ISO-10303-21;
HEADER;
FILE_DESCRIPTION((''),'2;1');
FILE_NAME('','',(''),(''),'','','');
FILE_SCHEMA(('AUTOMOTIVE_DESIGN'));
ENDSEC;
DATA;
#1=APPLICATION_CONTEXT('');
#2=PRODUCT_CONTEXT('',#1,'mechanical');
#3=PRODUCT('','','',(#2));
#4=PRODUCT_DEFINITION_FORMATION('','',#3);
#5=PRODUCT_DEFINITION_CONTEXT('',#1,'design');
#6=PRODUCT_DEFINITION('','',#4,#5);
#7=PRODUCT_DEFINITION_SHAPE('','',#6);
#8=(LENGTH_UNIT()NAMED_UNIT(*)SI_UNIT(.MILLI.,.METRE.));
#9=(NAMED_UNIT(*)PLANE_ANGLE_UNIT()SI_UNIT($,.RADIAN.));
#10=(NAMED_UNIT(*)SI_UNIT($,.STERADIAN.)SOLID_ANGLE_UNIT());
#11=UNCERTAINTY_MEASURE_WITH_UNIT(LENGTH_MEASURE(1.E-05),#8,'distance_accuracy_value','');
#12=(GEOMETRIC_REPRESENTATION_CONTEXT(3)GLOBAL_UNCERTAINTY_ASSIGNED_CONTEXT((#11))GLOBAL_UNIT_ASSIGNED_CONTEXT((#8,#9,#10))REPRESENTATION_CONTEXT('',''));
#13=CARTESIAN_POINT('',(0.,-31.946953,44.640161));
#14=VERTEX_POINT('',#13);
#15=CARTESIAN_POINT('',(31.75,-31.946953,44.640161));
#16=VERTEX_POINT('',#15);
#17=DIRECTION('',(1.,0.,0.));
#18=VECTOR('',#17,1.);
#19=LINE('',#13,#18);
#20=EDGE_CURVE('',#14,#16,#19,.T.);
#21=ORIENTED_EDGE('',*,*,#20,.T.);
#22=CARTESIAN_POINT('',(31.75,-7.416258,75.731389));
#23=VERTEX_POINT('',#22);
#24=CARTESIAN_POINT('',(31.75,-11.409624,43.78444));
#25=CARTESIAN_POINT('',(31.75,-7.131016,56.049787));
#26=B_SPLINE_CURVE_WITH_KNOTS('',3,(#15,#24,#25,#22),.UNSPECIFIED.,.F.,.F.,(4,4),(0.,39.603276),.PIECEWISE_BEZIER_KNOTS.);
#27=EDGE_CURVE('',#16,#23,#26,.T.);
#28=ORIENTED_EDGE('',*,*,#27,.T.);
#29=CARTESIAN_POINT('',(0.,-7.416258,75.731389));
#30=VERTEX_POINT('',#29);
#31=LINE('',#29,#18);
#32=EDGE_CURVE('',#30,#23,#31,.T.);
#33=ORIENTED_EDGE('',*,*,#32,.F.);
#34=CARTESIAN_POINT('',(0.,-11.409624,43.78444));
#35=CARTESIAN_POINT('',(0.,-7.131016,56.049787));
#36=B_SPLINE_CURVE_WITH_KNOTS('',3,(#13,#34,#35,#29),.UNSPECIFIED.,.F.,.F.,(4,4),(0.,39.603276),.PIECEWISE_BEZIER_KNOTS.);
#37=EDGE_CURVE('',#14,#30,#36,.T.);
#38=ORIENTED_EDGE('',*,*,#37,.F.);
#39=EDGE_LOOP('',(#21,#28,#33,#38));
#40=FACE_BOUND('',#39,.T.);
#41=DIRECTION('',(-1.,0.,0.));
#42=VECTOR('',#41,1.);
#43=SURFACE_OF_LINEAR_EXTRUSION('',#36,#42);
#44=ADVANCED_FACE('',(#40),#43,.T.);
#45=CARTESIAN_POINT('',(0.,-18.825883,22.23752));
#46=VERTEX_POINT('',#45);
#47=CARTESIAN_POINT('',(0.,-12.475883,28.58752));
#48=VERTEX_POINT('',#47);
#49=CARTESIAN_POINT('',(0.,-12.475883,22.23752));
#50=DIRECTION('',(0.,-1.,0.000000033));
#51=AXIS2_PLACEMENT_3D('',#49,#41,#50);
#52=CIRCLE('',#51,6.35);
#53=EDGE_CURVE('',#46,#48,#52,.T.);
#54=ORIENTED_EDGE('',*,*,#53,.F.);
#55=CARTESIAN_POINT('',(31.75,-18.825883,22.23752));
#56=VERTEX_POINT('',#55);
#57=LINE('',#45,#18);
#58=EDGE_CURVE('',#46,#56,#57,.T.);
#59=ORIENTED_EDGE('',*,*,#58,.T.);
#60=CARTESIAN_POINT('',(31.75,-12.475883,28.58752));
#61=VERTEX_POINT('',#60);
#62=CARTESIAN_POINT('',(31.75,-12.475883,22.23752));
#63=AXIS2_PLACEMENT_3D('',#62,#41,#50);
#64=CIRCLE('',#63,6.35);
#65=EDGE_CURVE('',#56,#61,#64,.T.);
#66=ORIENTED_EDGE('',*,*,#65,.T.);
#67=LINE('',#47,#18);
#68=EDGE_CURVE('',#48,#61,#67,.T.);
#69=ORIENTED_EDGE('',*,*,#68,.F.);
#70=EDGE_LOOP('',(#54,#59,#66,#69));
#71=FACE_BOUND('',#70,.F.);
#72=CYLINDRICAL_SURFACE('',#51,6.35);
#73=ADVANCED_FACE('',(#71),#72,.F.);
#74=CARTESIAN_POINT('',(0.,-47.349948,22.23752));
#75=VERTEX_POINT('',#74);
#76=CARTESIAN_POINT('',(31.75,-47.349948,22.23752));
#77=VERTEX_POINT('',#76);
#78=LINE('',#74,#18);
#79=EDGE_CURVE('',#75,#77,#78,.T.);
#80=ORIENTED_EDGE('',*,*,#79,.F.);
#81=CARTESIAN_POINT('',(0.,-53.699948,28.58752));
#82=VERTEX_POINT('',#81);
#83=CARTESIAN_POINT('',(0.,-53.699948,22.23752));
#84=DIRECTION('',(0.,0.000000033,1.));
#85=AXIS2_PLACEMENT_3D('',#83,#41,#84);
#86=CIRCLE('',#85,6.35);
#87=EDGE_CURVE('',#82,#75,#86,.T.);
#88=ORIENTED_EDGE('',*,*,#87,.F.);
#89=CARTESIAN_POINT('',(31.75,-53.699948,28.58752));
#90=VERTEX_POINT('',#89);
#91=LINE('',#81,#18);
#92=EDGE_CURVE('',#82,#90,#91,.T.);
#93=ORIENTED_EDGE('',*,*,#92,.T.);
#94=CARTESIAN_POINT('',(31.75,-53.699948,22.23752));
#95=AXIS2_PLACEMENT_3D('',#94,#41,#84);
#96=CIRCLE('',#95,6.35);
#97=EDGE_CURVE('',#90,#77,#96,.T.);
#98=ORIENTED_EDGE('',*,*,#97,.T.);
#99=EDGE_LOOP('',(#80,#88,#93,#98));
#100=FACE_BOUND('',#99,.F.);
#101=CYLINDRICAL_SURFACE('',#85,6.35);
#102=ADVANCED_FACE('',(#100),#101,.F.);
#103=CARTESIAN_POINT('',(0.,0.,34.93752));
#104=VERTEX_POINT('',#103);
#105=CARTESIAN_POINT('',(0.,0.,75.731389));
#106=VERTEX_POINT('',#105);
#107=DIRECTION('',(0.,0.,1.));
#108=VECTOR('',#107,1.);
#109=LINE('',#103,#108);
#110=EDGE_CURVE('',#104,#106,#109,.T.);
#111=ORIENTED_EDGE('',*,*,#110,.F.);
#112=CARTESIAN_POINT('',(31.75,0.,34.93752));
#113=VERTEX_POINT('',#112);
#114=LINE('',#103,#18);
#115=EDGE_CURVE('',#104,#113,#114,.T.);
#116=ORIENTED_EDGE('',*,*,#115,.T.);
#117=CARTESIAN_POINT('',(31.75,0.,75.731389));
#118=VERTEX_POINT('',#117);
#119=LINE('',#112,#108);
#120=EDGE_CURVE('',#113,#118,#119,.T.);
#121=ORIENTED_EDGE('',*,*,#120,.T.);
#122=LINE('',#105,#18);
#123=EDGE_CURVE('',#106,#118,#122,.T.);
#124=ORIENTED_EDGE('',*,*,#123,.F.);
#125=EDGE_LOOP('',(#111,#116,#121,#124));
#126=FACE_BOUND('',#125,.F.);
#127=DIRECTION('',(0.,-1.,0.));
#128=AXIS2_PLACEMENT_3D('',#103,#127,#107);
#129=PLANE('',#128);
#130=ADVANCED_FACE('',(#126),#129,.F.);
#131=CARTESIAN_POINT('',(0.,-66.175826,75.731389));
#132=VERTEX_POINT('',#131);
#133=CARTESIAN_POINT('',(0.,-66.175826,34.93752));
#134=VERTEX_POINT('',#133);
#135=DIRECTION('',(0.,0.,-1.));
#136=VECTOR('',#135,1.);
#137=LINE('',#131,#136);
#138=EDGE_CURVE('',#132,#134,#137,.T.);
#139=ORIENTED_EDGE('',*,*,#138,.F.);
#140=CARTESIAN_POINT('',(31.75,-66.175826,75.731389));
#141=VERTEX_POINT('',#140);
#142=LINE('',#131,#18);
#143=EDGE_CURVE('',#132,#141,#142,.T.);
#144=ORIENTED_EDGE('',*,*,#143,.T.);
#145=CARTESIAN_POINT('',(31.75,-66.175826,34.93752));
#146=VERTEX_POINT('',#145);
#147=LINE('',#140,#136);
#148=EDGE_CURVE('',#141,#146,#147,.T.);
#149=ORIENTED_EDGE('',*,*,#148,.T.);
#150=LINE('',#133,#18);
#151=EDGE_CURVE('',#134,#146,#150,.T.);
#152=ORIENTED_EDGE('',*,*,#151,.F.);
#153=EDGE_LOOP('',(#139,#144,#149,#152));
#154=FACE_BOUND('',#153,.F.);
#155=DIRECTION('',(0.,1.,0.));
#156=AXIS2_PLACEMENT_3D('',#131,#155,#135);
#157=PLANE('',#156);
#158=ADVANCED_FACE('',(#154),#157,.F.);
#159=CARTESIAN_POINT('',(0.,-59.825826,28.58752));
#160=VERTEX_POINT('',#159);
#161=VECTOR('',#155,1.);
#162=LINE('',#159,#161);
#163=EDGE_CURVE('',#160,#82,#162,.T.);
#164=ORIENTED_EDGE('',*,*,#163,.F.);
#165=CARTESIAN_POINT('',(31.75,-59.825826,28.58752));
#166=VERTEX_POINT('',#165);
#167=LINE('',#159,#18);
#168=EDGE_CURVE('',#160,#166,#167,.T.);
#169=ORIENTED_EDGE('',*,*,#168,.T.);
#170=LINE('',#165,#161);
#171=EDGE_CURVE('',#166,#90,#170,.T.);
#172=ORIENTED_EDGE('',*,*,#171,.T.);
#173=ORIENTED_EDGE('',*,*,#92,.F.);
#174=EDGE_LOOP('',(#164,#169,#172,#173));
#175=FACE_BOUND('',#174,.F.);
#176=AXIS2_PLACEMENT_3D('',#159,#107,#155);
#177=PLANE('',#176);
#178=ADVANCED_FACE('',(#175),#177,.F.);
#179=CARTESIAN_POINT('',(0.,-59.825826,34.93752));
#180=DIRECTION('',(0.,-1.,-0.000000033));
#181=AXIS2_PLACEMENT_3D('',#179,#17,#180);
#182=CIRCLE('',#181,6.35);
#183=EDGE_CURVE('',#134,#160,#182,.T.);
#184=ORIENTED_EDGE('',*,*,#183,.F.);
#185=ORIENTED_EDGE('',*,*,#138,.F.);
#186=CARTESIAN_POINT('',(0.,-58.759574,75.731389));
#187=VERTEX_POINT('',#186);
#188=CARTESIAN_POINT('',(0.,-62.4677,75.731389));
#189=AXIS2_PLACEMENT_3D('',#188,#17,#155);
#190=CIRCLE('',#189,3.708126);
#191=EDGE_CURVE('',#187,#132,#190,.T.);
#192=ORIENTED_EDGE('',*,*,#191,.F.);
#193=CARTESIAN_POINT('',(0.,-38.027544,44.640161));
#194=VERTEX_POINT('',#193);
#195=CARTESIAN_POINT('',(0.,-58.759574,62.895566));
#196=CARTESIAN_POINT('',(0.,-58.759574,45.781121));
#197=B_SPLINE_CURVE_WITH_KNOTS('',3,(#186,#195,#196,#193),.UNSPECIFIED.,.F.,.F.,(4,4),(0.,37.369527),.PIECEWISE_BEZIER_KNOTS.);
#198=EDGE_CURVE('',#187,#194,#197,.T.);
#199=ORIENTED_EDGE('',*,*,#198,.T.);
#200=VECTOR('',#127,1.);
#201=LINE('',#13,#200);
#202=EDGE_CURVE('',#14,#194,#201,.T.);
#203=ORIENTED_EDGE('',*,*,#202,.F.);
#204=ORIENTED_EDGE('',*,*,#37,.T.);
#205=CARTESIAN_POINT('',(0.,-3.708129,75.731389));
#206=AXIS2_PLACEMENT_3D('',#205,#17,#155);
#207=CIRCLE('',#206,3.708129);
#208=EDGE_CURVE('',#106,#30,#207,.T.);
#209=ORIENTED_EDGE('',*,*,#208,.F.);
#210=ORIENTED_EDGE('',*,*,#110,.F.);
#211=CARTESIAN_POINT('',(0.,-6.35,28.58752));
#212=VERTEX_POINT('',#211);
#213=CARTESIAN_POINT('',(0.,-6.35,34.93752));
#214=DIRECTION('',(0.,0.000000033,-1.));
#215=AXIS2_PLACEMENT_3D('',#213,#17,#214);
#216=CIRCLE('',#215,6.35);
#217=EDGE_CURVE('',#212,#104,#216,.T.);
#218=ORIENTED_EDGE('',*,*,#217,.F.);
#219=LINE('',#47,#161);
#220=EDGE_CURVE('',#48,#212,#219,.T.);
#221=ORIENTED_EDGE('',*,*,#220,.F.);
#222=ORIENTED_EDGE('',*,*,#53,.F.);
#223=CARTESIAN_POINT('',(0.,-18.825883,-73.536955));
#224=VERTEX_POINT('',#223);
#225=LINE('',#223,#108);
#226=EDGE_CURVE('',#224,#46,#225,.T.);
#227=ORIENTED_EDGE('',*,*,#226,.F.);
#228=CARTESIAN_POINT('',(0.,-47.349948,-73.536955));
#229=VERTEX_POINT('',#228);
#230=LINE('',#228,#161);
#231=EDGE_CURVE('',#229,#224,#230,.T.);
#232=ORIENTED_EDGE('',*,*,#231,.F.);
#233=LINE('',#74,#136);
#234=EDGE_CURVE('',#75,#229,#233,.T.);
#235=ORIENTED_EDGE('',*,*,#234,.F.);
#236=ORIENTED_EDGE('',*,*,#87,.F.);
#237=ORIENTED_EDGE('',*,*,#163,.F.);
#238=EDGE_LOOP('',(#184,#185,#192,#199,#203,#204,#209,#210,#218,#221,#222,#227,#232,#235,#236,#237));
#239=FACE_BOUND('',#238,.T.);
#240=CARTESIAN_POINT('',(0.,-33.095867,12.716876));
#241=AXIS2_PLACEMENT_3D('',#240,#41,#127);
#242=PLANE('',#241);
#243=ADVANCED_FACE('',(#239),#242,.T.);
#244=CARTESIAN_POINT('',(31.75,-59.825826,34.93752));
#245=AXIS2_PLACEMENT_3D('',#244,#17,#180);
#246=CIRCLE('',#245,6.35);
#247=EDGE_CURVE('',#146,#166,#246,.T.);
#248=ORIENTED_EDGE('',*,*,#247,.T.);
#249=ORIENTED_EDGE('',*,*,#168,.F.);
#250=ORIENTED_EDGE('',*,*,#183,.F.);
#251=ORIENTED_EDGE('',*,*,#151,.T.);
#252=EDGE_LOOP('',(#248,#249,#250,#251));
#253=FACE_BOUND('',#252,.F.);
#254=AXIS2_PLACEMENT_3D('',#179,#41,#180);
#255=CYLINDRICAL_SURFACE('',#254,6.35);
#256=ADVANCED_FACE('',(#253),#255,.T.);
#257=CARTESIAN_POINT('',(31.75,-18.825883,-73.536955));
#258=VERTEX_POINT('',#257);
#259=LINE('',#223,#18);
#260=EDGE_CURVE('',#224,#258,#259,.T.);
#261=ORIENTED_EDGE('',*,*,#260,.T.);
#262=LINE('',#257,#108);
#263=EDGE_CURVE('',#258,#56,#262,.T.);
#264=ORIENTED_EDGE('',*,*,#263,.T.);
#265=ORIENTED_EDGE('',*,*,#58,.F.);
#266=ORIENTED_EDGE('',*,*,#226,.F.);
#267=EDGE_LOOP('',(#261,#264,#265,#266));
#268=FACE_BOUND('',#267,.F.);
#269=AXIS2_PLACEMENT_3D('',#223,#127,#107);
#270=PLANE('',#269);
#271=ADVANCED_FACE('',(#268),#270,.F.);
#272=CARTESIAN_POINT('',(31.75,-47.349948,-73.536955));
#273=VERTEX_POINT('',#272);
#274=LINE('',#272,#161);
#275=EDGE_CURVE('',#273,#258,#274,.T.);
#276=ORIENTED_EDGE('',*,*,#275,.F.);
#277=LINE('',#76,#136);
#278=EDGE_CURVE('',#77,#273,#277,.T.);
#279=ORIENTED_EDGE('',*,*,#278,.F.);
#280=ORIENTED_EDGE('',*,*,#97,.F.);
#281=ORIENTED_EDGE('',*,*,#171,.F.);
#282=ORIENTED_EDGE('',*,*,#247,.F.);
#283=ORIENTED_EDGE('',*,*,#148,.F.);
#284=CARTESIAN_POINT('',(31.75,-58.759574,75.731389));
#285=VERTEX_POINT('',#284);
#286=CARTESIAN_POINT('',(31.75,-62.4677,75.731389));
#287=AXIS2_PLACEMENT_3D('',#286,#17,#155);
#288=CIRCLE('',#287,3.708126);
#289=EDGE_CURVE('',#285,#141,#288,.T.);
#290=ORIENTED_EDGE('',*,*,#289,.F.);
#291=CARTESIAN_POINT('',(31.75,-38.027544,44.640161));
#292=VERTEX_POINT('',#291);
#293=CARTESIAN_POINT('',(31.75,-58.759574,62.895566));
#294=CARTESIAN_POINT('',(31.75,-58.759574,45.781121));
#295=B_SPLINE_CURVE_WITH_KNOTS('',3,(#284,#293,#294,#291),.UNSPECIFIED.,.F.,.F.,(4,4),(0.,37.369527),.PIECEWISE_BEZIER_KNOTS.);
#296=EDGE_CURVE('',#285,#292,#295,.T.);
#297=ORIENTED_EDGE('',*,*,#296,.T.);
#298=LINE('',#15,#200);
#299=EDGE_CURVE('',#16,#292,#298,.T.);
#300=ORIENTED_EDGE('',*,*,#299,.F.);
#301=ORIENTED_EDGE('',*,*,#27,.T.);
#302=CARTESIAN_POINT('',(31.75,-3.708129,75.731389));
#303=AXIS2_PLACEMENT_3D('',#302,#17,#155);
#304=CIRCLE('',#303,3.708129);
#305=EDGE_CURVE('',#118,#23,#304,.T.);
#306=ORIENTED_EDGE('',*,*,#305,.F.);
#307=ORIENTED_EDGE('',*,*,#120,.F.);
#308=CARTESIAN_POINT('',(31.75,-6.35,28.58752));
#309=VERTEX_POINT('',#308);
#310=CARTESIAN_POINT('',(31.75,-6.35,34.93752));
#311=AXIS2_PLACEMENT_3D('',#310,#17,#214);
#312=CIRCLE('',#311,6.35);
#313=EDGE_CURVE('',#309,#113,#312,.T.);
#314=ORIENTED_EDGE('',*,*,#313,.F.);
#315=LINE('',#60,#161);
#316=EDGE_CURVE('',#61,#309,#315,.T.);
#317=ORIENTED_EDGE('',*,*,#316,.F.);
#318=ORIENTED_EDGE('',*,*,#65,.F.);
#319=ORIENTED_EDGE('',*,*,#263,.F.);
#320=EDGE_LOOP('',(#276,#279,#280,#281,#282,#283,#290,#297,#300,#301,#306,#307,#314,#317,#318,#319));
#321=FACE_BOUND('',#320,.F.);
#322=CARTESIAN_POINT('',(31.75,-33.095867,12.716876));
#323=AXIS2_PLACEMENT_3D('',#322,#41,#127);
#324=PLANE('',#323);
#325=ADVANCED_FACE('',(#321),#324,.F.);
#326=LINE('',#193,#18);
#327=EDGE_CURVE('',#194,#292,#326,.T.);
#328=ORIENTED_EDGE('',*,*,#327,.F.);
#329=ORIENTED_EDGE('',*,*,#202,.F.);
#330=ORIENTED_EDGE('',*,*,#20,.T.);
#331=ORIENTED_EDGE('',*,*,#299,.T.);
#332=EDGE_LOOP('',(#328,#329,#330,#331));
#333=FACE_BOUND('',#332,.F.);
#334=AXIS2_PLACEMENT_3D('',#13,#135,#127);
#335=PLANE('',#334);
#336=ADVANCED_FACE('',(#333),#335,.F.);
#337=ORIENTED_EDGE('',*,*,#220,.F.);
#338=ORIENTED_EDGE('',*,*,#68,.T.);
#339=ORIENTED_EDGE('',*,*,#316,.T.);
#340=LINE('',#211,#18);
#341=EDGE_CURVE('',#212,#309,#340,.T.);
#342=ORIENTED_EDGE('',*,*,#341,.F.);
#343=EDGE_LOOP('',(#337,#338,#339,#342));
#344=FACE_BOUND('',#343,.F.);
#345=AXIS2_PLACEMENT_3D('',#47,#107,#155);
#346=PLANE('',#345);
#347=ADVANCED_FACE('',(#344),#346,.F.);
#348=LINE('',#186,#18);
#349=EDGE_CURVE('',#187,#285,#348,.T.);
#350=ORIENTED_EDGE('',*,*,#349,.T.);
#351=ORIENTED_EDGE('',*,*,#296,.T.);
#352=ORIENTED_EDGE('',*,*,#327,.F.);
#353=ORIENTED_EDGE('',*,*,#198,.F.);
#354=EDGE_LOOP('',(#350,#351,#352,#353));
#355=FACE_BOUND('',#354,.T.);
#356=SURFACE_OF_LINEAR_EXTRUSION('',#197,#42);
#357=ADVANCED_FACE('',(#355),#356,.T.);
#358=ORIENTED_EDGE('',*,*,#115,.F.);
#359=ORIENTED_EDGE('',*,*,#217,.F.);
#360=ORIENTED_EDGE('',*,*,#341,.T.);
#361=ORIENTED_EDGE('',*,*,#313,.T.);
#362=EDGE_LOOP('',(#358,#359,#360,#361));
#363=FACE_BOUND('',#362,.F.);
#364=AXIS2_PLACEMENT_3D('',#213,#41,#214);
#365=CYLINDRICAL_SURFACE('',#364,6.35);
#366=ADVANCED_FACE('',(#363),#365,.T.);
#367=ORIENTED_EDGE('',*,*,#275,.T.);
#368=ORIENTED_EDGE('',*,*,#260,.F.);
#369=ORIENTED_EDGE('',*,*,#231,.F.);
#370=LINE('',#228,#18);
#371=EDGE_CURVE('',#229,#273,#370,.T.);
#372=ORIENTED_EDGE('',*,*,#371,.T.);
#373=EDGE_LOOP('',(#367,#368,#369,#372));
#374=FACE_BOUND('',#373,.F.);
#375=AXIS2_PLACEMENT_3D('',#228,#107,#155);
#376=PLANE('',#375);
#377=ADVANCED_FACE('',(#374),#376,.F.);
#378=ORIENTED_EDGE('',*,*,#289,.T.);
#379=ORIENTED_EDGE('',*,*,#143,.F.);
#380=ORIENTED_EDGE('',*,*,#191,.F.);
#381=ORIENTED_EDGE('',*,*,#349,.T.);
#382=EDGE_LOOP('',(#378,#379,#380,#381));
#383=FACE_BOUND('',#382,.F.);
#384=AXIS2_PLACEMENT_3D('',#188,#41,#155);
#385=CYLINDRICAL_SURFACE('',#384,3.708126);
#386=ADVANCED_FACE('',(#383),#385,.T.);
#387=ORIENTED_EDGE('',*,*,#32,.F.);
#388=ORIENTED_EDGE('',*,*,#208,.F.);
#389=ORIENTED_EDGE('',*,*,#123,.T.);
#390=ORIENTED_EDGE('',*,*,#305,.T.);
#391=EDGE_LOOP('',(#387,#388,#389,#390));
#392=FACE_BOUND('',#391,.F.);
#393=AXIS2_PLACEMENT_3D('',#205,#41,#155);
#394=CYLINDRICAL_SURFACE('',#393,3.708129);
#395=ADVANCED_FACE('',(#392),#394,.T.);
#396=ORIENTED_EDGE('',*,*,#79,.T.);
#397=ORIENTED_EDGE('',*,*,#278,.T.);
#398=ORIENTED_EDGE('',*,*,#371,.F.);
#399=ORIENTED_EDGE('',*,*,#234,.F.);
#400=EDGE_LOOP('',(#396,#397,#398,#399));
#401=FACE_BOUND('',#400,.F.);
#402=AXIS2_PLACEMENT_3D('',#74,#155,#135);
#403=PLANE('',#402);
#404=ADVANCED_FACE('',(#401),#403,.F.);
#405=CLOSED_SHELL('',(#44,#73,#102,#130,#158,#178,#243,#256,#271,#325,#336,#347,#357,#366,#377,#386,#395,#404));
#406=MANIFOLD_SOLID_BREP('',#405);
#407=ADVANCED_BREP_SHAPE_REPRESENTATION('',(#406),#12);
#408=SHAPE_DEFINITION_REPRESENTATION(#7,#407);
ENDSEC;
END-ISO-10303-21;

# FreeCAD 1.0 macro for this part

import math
import FreeCAD as App
import Part
import Sketcher
from FreeCAD import Vector
Q = App.Units.Quantity

doc = App.newDocument("Part")
body = doc.addObject("PartDesign::Body", "Body")

# Sketch on YZ plane
sketch1 = doc.addObject("Sketcher::SketchObject", "Sketch")
body.addObject(sketch1)
sketch1.AttachmentSupport = (doc.YZ_Plane, [""])
sketch1.MapMode = "FlatFace"
sketch1.addGeometry(Part.BSplineCurve([Vector(-31.946953, 44.640161, 0), Vector(-11.409624, 43.78444, 0), Vector(-7.131016, 56.049787, 0), Vector(-7.416258, 75.731389, 0)], [4, 4], [0, 39.603276], False, 3, [1, 1, 1, 1], False), False)
sketch1.addGeometry(Part.LineSegment(Vector(-31.946953, 44.640161, 0), Vector(-38.027544, 44.640161, 0)), False)
sketch1.addGeometry(Part.BSplineCurve([Vector(-58.759574, 75.731389, 0), Vector(-58.759574, 62.895566, 0), Vector(-58.759574, 45.781121, 0), Vector(-38.027544, 44.640161, 0)], [4, 4], [0, 37.369527], False, 3, [1, 1, 1, 1], False), False)
sketch1.addGeometry(Part.ArcOfCircle(Part.Circle(Vector(-62.4677, 75.731389, 0), Vector(0, 0, 1), 3.708126), math.radians(0), math.radians(180)), False)
sketch1.addGeometry(Part.LineSegment(Vector(-66.175826, 75.731389, 0), Vector(-66.175826, 34.93752, 0)), False)
sketch1.addGeometry(Part.ArcOfCircle(Part.Circle(Vector(-59.825826, 34.93752, 0), Vector(0, 0, 1), 6.35), math.radians(-179.999998), math.radians(-90.000002)), False)
sketch1.addGeometry(Part.LineSegment(Vector(-59.825826, 28.58752, 0), Vector(-53.699948, 28.58752, 0)), False)
sketch1.addGeometry(Part.ArcOfCircle(Part.Circle(Vector(-53.699948, 22.23752, 0), Vector(0, 0, 1), 6.35), math.radians(0.000002), math.radians(89.999998)), False)
sketch1.addGeometry(Part.LineSegment(Vector(-47.349948, 22.23752, 0), Vector(-47.349948, -73.536955, 0)), False)
sketch1.addGeometry(Part.LineSegment(Vector(-47.349948, -73.536955, 0), Vector(-18.825883, -73.536955, 0)), False)
sketch1.addGeometry(Part.LineSegment(Vector(-18.825883, -73.536955, 0), Vector(-18.825883, 22.23752, 0)), False)
sketch1.addGeometry(Part.ArcOfCircle(Part.Circle(Vector(-12.475883, 22.23752, 0), Vector(0, 0, 1), 6.35), math.radians(90.000002), math.radians(179.999998)), False)
sketch1.addGeometry(Part.LineSegment(Vector(-12.475883, 28.58752, 0), Vector(-6.35, 28.58752, 0)), False)
sketch1.addGeometry(Part.ArcOfCircle(Part.Circle(Vector(-6.35, 34.93752, 0), Vector(0, 0, 1), 6.35), math.radians(-89.999998), math.radians(-0.000002)), False)
sketch1.addGeometry(Part.LineSegment(Vector(0, 34.93752, 0), Vector(0, 75.731389, 0)), False)
sketch1.addGeometry(Part.ArcOfCircle(Part.Circle(Vector(-3.708129, 75.731389, 0), Vector(0, 0, 1), 3.708129), math.radians(0), math.radians(180)), False)
sketch1.addConstraint(Sketcher.Constraint("Block", 0))
sketch1.addConstraint(Sketcher.Constraint("Block", 2))
sketch1.addConstraint(Sketcher.Constraint("Coincident", 0, 1, 1, 1))
sketch1.addConstraint(Sketcher.Constraint("Coincident", 1, 2, 2, 2))
sketch1.addConstraint(Sketcher.Constraint("Coincident", 2, 1, 3, 1))
sketch1.addConstraint(Sketcher.Constraint("Coincident", 3, 2, 4, 1))
sketch1.addConstraint(Sketcher.Constraint("Coincident", 4, 2, 5, 1))
sketch1.addConstraint(Sketcher.Constraint("Coincident", 5, 2, 6, 1))
sketch1.addConstraint(Sketcher.Constraint("Coincident", 6, 2, 7, 2))
sketch1.addConstraint(Sketcher.Constraint("Coincident", 7, 1, 8, 1))
sketch1.addConstraint(Sketcher.Constraint("Coincident", 8, 2, 9, 1))
sketch1.addConstraint(Sketcher.Constraint("Coincident", 9, 2, 10, 1))
sketch1.addConstraint(Sketcher.Constraint("Coincident", 10, 2, 11, 2))
sketch1.addConstraint(Sketcher.Constraint("Coincident", 11, 1, 12, 1))
sketch1.addConstraint(Sketcher.Constraint("Coincident", 12, 2, 13, 1))
sketch1.addConstraint(Sketcher.Constraint("Coincident", 13, 2, 14, 1))
sketch1.addConstraint(Sketcher.Constraint("Coincident", 14, 2, 15, 1))
sketch1.addConstraint(Sketcher.Constraint("Coincident", 15, 2, 0, 2))
sketch1.addConstraint(Sketcher.Constraint("Vertical", 4))
sketch1.addConstraint(Sketcher.Constraint("Horizontal", 6))
sketch1.addConstraint(Sketcher.Constraint("Vertical", 8))
sketch1.addConstraint(Sketcher.Constraint("Horizontal", 9))
sketch1.addConstraint(Sketcher.Constraint("Vertical", 10))
sketch1.addConstraint(Sketcher.Constraint("Horizontal", 12))
sketch1.addConstraint(Sketcher.Constraint("Vertical", 14))
sketch1.addConstraint(Sketcher.Constraint("PointOnObject", 13, 2, -2))
sketch1.addConstraint(Sketcher.Constraint("Radius", 5, Q("0.25 in")))
sketch1.addConstraint(Sketcher.Constraint("Radius", 7, Q("0.25 in")))
sketch1.addConstraint(Sketcher.Constraint("Radius", 11, Q("0.25 in")))
sketch1.addConstraint(Sketcher.Constraint("Radius", 13, Q("0.25 in")))
sketch1.addConstraint(Sketcher.Constraint("DistanceY", 11, 3, 5, 3, Q("0.5 in")))
sketch1.addConstraint(Sketcher.Constraint("DistanceY", 7, 3, 4, 2, Q("0.5 in")))
sketch1.addConstraint(Sketcher.Constraint("DistanceY", 7, 1, 5, 3, Q("0.5 in")))
sketch1.addConstraint(Sketcher.Constraint("DistanceY", 10, 2, 13, 3, Q("0.5 in")))
sketch1.addConstraint(Sketcher.Constraint("DistanceY", 11, 3, 13, 2, Q("0.5 in")))
sketch1.addConstraint(Sketcher.Constraint("DistanceX", 12, 2, -1, 1, Q("0.25 in")))
sketch1.addConstraint(Sketcher.Constraint("DistanceX", 4, 2, 5, 2, Q("0.25 in")))
sketch1.addConstraint(Sketcher.Constraint("DistanceX", 6, 2, 7, 1, Q("0.25 in")))
sketch1.addConstraint(Sketcher.Constraint("DistanceX", 10, 2, 11, 1, Q("0.25 in")))
sketch1.addConstraint(Sketcher.Constraint("Radius", 3, 3.708126))
sketch1.addConstraint(Sketcher.Constraint("DistanceY", 4, 2, 4, 1, 40.793869))
sketch1.addConstraint(Sketcher.Constraint("DistanceY", 14, 1, 14, 2, 40.793869))
sketch1.addConstraint(Sketcher.Constraint("DistanceX", 6, 1, 6, 2, 6.125878))
sketch1.addConstraint(Sketcher.Constraint("DistanceX", 9, 1, 9, 2, 28.524065))
sketch1.addConstraint(Sketcher.Constraint("DistanceY", 8, 2, 8, 1, 95.774475))
sketch1.addConstraint(Sketcher.Constraint("DistanceY", -1, 1, 3, 3, 75.731389))
sketch1.addConstraint(Sketcher.Constraint("DistanceY", -1, 1, 5, 3, 34.93752))
sketch1.addConstraint(Sketcher.Constraint("DistanceY", -1, 1, 15, 3, 75.731389))
pad1 = doc.addObject("PartDesign::Pad", "Pad")
body.addObject(pad1)
pad1.Profile = sketch1
pad1.Length = Q("1.25 in")

doc.recompute()
